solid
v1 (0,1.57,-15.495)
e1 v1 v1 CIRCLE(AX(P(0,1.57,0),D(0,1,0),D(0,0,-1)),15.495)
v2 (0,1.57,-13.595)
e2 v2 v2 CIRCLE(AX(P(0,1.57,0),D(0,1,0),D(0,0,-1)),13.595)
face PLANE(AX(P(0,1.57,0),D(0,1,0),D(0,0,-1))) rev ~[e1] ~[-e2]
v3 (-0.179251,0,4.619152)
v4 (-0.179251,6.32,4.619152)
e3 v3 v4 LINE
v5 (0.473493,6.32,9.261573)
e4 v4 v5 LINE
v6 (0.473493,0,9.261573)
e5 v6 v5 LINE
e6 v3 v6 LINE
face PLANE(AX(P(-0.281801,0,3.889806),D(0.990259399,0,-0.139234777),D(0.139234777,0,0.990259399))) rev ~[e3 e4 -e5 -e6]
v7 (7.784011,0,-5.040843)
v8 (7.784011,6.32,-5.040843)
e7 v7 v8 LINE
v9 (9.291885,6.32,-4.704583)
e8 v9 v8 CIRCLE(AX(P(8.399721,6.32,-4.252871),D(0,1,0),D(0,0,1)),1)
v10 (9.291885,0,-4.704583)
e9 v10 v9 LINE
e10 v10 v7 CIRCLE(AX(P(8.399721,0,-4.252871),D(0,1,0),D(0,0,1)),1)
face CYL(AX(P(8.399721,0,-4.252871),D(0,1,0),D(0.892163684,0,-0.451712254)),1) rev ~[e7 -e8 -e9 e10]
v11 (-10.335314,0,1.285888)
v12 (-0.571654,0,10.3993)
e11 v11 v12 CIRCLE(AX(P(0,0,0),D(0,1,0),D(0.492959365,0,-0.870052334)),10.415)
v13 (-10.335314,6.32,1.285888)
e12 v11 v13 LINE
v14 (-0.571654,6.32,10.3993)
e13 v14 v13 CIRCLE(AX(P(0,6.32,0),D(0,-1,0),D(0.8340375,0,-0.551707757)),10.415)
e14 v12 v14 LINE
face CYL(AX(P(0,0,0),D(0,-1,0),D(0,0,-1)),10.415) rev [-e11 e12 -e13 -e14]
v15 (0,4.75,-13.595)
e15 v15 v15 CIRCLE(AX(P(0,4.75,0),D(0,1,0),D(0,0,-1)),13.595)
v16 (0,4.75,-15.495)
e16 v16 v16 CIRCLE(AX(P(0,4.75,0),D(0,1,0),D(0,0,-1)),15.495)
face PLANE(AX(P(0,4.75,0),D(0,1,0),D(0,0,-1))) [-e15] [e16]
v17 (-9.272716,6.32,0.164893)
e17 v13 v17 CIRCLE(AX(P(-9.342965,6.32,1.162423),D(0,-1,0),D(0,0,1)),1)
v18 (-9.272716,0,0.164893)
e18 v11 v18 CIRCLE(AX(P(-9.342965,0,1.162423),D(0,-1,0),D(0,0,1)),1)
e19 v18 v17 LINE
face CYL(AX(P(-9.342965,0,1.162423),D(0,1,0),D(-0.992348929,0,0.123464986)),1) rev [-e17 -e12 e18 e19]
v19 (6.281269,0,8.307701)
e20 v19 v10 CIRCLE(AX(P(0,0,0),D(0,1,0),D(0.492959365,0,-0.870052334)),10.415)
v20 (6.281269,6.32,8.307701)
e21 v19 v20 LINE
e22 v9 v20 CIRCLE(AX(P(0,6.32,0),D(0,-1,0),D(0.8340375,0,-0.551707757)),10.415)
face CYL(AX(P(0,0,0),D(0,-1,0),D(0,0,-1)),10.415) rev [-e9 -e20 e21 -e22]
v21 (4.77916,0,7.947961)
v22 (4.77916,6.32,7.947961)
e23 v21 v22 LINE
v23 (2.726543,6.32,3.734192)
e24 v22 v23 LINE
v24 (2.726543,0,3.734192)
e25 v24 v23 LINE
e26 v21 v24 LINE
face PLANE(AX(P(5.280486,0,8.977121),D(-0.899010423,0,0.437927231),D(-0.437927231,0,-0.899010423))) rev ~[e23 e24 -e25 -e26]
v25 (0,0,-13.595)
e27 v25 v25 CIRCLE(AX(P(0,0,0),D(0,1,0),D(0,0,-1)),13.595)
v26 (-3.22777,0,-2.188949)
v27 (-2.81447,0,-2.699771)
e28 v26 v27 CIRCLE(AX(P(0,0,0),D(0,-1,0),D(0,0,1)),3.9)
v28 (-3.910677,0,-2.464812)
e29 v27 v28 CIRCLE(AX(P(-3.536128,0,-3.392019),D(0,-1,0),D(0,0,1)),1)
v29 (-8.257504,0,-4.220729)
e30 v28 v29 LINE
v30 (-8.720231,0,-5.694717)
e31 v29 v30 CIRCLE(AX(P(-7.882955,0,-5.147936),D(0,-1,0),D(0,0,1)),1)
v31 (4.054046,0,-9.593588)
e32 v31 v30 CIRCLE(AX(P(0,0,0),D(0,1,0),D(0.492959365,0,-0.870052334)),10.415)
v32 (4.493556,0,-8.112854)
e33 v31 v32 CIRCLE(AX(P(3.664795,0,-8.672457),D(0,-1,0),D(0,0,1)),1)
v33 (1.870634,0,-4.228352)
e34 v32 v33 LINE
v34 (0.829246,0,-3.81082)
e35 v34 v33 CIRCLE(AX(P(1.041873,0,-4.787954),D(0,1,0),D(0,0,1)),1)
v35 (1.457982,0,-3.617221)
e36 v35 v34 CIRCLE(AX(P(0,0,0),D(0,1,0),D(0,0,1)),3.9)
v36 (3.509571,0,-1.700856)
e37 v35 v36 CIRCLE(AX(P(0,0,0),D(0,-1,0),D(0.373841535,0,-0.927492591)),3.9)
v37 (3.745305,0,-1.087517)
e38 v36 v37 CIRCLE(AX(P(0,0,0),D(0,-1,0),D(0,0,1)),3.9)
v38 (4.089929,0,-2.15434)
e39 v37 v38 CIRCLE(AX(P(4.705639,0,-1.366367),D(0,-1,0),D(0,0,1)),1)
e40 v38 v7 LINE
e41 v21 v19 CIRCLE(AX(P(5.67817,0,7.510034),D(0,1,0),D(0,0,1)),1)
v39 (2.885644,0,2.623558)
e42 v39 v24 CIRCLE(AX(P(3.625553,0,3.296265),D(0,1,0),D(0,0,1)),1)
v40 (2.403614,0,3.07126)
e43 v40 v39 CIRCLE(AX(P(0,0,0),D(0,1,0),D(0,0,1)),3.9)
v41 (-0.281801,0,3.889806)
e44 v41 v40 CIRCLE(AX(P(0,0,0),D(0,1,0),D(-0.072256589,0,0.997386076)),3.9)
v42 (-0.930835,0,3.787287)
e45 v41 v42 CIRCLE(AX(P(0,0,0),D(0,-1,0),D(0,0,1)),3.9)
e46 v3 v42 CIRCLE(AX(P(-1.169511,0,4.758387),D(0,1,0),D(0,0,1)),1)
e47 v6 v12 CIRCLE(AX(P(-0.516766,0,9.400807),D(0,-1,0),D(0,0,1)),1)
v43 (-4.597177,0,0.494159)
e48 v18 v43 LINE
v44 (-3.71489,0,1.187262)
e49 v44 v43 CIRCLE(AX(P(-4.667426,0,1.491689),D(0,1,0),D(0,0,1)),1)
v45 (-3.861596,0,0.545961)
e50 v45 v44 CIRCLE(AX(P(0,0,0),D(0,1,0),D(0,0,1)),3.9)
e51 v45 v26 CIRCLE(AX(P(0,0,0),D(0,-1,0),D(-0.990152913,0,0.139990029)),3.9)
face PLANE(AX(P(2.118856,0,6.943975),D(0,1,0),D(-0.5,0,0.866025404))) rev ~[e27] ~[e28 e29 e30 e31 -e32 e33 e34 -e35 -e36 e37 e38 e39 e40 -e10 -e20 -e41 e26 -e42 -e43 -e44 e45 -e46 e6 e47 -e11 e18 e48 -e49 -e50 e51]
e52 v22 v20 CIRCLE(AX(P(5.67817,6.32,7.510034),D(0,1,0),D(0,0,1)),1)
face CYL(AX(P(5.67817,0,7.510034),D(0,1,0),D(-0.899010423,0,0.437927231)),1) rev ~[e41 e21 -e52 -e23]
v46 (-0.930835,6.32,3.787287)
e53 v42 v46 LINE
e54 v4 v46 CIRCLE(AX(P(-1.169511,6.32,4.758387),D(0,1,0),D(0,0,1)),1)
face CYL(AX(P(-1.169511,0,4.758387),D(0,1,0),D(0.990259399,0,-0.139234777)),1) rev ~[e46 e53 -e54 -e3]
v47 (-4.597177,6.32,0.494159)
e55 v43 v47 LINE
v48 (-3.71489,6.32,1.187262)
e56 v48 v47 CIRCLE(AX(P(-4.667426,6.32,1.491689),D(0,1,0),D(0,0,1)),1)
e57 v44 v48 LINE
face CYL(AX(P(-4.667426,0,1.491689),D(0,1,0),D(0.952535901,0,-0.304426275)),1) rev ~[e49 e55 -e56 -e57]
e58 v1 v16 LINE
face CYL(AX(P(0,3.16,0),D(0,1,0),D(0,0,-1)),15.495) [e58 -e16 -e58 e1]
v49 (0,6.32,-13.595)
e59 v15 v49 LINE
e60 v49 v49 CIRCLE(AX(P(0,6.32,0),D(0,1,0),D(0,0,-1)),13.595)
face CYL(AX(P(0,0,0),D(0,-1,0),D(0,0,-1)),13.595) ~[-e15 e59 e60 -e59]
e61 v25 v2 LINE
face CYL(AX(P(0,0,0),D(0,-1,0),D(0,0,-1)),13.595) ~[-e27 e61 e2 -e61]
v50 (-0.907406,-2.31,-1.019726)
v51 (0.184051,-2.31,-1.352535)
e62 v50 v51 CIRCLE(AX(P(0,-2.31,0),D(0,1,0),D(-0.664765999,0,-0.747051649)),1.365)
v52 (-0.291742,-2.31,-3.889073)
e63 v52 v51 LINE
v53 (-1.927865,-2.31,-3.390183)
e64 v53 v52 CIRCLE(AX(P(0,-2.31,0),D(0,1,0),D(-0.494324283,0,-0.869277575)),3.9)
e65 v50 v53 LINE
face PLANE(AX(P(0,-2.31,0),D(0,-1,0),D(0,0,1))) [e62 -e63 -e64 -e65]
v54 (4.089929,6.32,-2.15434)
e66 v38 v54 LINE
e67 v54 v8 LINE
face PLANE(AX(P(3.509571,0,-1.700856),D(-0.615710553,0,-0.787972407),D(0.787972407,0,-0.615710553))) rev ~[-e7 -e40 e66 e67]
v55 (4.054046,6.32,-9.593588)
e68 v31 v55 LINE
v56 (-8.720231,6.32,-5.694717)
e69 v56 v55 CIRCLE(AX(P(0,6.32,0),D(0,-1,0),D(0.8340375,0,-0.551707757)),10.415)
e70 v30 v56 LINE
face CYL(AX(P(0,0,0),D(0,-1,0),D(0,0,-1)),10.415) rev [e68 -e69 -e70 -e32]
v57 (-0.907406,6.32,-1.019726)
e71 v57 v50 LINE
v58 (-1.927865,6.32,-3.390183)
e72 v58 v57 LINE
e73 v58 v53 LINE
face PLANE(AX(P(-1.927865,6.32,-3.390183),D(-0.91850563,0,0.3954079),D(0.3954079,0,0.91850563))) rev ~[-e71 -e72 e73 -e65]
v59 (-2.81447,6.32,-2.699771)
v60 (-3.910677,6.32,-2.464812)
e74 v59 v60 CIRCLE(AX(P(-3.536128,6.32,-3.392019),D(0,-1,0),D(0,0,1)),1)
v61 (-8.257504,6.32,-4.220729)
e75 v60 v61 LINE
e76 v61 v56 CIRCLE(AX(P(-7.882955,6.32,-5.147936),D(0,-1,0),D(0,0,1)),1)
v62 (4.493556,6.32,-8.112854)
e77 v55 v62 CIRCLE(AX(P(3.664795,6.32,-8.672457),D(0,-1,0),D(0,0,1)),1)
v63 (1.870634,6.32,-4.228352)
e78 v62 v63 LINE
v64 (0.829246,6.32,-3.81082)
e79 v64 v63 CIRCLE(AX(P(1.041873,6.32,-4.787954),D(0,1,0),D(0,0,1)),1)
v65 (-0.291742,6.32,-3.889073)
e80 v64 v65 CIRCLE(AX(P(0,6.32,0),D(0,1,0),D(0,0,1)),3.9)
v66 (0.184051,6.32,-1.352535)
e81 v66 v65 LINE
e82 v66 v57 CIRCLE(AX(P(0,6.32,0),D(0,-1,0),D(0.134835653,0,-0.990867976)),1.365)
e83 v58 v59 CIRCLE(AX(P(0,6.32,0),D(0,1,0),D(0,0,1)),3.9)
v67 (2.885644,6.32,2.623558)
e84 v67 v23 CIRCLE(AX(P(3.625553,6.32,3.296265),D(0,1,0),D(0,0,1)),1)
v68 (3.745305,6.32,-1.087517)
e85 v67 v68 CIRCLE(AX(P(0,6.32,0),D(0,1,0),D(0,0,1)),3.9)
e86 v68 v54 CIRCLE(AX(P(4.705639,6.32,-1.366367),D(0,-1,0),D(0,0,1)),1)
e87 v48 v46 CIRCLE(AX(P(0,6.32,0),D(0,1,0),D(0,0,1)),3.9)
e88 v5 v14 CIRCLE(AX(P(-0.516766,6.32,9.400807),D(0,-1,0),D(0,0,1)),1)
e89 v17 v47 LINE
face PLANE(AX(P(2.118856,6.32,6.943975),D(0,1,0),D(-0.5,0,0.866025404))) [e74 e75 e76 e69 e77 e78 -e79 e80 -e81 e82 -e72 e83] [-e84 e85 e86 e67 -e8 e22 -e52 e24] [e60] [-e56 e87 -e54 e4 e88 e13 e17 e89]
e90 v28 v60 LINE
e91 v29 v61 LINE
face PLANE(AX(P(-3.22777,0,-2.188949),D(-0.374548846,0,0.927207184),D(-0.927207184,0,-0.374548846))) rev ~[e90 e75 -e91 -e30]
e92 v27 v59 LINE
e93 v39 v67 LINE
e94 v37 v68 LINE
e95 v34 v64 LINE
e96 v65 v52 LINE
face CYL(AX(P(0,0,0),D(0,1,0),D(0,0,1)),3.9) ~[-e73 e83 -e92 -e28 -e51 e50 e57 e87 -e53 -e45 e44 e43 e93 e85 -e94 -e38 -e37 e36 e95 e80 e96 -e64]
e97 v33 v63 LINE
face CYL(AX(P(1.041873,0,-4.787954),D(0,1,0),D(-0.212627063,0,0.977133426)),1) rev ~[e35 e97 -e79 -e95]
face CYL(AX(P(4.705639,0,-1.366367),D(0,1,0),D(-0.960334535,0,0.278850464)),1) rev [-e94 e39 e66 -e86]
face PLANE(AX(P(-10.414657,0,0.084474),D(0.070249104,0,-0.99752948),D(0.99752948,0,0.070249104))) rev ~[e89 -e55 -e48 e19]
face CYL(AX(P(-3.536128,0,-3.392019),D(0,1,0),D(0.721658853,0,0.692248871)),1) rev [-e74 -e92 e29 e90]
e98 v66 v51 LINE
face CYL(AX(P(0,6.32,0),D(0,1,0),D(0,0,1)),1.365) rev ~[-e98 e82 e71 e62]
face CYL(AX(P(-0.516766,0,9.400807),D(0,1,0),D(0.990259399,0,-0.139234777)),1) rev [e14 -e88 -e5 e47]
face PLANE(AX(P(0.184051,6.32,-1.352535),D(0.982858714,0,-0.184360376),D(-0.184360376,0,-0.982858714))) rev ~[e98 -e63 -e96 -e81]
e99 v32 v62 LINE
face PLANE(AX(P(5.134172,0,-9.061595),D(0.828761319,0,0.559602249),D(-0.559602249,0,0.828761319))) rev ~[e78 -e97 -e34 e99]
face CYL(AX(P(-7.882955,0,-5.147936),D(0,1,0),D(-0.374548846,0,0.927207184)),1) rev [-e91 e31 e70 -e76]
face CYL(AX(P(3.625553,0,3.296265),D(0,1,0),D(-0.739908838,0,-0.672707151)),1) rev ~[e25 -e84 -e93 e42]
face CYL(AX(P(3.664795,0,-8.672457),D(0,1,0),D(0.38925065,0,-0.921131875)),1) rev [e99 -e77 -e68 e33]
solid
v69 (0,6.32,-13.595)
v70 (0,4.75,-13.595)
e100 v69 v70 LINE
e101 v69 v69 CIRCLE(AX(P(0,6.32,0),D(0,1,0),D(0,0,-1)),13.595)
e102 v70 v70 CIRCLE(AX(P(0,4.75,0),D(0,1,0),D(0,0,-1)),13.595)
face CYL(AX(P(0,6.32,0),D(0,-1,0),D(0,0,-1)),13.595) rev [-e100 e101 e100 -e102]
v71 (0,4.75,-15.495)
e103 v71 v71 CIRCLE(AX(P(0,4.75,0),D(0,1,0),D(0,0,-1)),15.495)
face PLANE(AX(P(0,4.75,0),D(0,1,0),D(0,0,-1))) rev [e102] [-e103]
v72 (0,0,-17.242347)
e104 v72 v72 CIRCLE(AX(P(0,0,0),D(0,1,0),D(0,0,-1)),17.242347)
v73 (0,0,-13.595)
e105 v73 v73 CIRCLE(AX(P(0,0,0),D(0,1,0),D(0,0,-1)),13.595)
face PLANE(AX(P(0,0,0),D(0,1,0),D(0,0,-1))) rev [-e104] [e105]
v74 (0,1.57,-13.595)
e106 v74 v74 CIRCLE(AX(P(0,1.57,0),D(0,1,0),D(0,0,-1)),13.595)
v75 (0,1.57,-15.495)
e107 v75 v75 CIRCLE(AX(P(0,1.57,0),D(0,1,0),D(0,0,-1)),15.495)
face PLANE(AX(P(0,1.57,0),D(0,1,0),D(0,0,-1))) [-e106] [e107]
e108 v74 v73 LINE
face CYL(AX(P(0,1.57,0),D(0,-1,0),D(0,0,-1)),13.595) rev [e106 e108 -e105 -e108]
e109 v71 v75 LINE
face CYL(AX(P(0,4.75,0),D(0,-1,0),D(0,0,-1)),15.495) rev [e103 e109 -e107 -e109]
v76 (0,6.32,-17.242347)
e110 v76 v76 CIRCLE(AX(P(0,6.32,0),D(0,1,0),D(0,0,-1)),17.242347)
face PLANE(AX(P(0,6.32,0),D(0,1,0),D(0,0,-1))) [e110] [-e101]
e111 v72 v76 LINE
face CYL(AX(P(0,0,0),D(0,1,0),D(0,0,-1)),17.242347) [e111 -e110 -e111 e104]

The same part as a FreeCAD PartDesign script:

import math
import FreeCAD as App
import Part
import Sketcher


def edges_at(feature, points):
    """Names of the edges that pass closest to the given points."""
    edges = feature.Shape.Edges
    near = lambda p: min(range(len(edges)), key=lambda i: edges[i].distToShape(Part.Vertex(*p))[0])
    return sorted({f"Edge{near(p) + 1}" for p in points})

doc = App.newDocument("Part")
body = doc.addObject("PartDesign::Body", "Body")

# Sketch on XZ plane
sketch1 = body.newObject("Sketcher::SketchObject", "Sketch")
sketch1.AttachmentSupport = (doc.getObject("XZ_Plane"), [""])
sketch1.MapMode = "FlatFace"
sketch1.addGeometry(Part.Circle(App.Vector(0, 0, 0), App.Vector(0, 0, 1), 14), False)
sketch1.addGeometry(Part.Circle(App.Vector(0, 0, 0), App.Vector(0, 0, 1), 10), False)
sketch1.addConstraint(Sketcher.Constraint("Coincident", 0, 3, -1, 1))
sketch1.addConstraint(Sketcher.Constraint("Coincident", 1, 3, -1, 1))
sketch1.addConstraint(Sketcher.Constraint("Diameter", 0, 27.19))
sketch1.addConstraint(Sketcher.Constraint("Diameter", 1, 20.83))
pad1 = body.newObject("PartDesign::Pad", "Pad")
pad1.Profile = sketch1
pad1.Length = 6.32
pad1.Reversed = True

# Sketch on XY plane
sketch2 = body.newObject("Sketcher::SketchObject", "Sketch001")
sketch2.AttachmentSupport = (doc.getObject("XY_Plane"), [""])
sketch2.MapMode = "FlatFace"
sketch2.addGeometry(Part.LineSegment(App.Vector(-15.5, 4.8, 0), App.Vector(-15.5, 1.6, 0)), False)
sketch2.addGeometry(Part.LineSegment(App.Vector(-15.5, 1.6, 0), App.Vector(-13.6, 1.6, 0)), False)
sketch2.addGeometry(Part.LineSegment(App.Vector(-13.6, 1.6, 0), App.Vector(-13.6, 4.8, 0)), False)
sketch2.addGeometry(Part.LineSegment(App.Vector(-13.6, 4.8, 0), App.Vector(-15.5, 4.8, 0)), False)
sketch2.addConstraint(Sketcher.Constraint("Coincident", 0, 2, 1, 1))
sketch2.addConstraint(Sketcher.Constraint("Coincident", 1, 2, 2, 1))
sketch2.addConstraint(Sketcher.Constraint("Coincident", 2, 2, 3, 1))
sketch2.addConstraint(Sketcher.Constraint("Coincident", 3, 2, 0, 1))
sketch2.addConstraint(Sketcher.Constraint("Vertical", 0))
sketch2.addConstraint(Sketcher.Constraint("Horizontal", 1))
sketch2.addConstraint(Sketcher.Constraint("Vertical", 2))
sketch2.addConstraint(Sketcher.Constraint("Horizontal", 3))
sketch2.addConstraint(Sketcher.Constraint("DistanceX", 1, 1, 1, 2, 1.9))
sketch2.addConstraint(Sketcher.Constraint("DistanceY", 0, 2, 0, 1, 3.18))
sketch2.addConstraint(Sketcher.Constraint("DistanceY", -1, 1, 0, 2, 1.57))
sketch2.addConstraint(Sketcher.Constraint("DistanceX", 0, 2, -1, 1, 15.495))
revolution = body.newObject("PartDesign::Revolution", "Revolution")
revolution.Profile = sketch2
revolution.ReferenceAxis = (sketch2, ["V_Axis"])
revolution.Angle = 360
body2 = doc.addObject("PartDesign::Body", "Body001")

# Sketch on XZ plane
sketch3 = body2.newObject("Sketcher::SketchObject", "Sketch002")
sketch3.AttachmentSupport = (doc.getObject("XZ_Plane001"), [""])
sketch3.MapMode = "FlatFace"
sketch3.AttachmentOffset = App.Placement(App.Vector(0, 0, -6.32), App.Rotation())
sketch3.addGeometry(Part.Circle(App.Vector(0, 0, 0), App.Vector(0, 0, 1), 3.9), False)
sketch3.addConstraint(Sketcher.Constraint("Coincident", 0, 3, -1, 1))
sketch3.addConstraint(Sketcher.Constraint("Diameter", 0, 7.8))
pad2 = body2.newObject("PartDesign::Pad", "Pad001")
pad2.Profile = sketch3
pad2.Length = 6.32

# Sketch on XZ plane
sketch4 = body2.newObject("Sketcher::SketchObject", "Sketch003")
sketch4.AttachmentSupport = (doc.getObject("XZ_Plane001"), [""])
sketch4.MapMode = "FlatFace"
sketch4.addGeometry(Part.Circle(App.Vector(0, 0, 0), App.Vector(0, 0, 1), 3.9), False)
sketch4.addConstraint(Sketcher.Constraint("Coincident", 0, 3, -1, 1))
sketch4.addConstraint(Sketcher.Constraint("Diameter", 0, 7.8))
pad3 = body2.newObject("PartDesign::Pad", "Pad002")
pad3.Profile = sketch4
pad3.Length = 2.31

# Sketch on XZ plane
sketch5 = body2.newObject("Sketcher::SketchObject", "Sketch004")
sketch5.AttachmentSupport = (doc.getObject("XZ_Plane001"), [""])
sketch5.MapMode = "FlatFace"
sketch5.AttachmentOffset = App.Placement(App.Vector(0, 0, -6.32), App.Rotation())
sketch5.addGeometry(Part.Circle(App.Vector(0, 0, 0), App.Vector(0, 0, 1), 1.4), False)
sketch5.addConstraint(Sketcher.Constraint("Coincident", 0, 3, -1, 1))
sketch5.addConstraint(Sketcher.Constraint("Diameter", 0, 2.73))
pocket1 = body2.newObject("PartDesign::Pocket", "Pocket")
pocket1.Profile = sketch5
pocket1.Length = 8.63
pocket1.Reversed = True
body.AllowCompound = True
doc.recompute()

boolean = body.newObject("PartDesign::Boolean", "Boolean")
boolean.Type = "Fuse"
boolean.addObjects([body2])

# Sketch on XZ plane
sketch6 = body.newObject("Sketcher::SketchObject", "Sketch005")
sketch6.AttachmentSupport = (doc.getObject("XZ_Plane"), [""])
sketch6.MapMode = "FlatFace"
sketch6.addGeometry(Part.LineSegment(App.Vector(5.1, -9.1, 0), App.Vector(1.5, -3.6, 0)), False)
sketch6.addGeometry(Part.ArcOfCircle(Part.Circle(App.Vector(0, 0, 0), App.Vector(0, 0, 1), 3.9), math.radians(-68), math.radians(-26)), False)
sketch6.addGeometry(Part.LineSegment(App.Vector(3.5, -1.7, 0), App.Vector(8.7, -5.7, 0)), False)
sketch6.addGeometry(Part.ArcOfCircle(Part.Circle(App.Vector(0, 0, 0), App.Vector(0, 0, 1), 10.4), math.radians(-60), math.radians(-33)), False)
sketch6.addConstraint(Sketcher.Constraint("Coincident", 0, 2, 1, 1))
sketch6.addConstraint(Sketcher.Constraint("Coincident", 1, 2, 2, 1))
sketch6.addConstraint(Sketcher.Constraint("Coincident", 2, 2, 3, 2))
sketch6.addConstraint(Sketcher.Constraint("Coincident", 3, 1, 0, 1))
sketch6.addConstraint(Sketcher.Constraint("Coincident", 1, 3, -1, 1))
sketch6.addConstraint(Sketcher.Constraint("Coincident", 3, 3, -1, 1))
sketch6.addConstraint(Sketcher.Constraint("Radius", 1, 3.9))
sketch6.addConstraint(Sketcher.Constraint("Radius", 3, 10.415))
sketch6.addConstraint(Sketcher.Constraint("DistanceX", -1, 1, 2, 2, 8.686501))
sketch6.addConstraint(Sketcher.Constraint("DistanceX", 1, 2, 3, 1, 1.624601))
sketch6.addConstraint(Sketcher.Constraint("Distance", 0, 6.569291))
sketch6.addConstraint(Sketcher.Constraint("DistanceX", -1, 1, 0, 2, 1.457982))
pad4 = body.newObject("PartDesign::Pad", "Pad003")
pad4.Profile = sketch6
pad4.Length = 6.32
pad4.Reversed = True
doc.recompute()

polarpattern = body.newObject("PartDesign::PolarPattern", "PolarPattern")
polarpattern.Originals = [pad4]
polarpattern.Axis = (doc.getObject("Y_Axis"), [""])
polarpattern.Angle = 360
polarpattern.Occurrences = 3
body.Tip = polarpattern
doc.recompute()

fillet = body.newObject("PartDesign::Fillet", "Fillet")
fillet.Base = (polarpattern, edges_at(polarpattern, [(0.633, 3.16, 10.396)]))
fillet.Radius = 1
doc.recompute()

fillet2 = body.newObject("PartDesign::Fillet", "Fillet001")
fillet2.Base = (fillet, edges_at(fillet, [
    (5.134, 3.16, -9.062),
    (8.687, 3.16, -5.746),
    (3.51, 3.16, -1.701),
    (1.458, 3.16, -3.617),
    (-10.415, 3.16, 0.084),
    (-9.319, 3.16, -4.65),
    (-3.228, 3.16, -2.189),
    (-3.862, 3.16, 0.546),
    (5.28, 3.16, 8.977),
    (-0.282, 3.16, 3.89),
    (2.404, 3.16, 3.071),
]))
fillet2.Radius = 1

# Sketch on XZ plane
sketch7 = body.newObject("Sketcher::SketchObject", "Sketch006")
sketch7.AttachmentSupport = (doc.getObject("XZ_Plane"), [""])
sketch7.MapMode = "FlatFace"
sketch7.AttachmentOffset = App.Placement(App.Vector(0, 0, -6.32), App.Rotation())
sketch7.addGeometry(Part.LineSegment(App.Vector(-1.9, -3.4, 0), App.Vector(-0.9, -1, 0)), False)
sketch7.addGeometry(Part.ArcOfCircle(Part.Circle(App.Vector(0, 0, 0), App.Vector(0, 0, 1), 1.4), math.radians(-132), math.radians(-82)), False)
sketch7.addGeometry(Part.LineSegment(App.Vector(0.2, -1.4, 0), App.Vector(-0.3, -3.9, 0)), False)
sketch7.addGeometry(Part.ArcOfCircle(Part.Circle(App.Vector(0, 0, 0), App.Vector(0, 0, 1), 3.9), math.radians(-120), math.radians(-94)), False)
sketch7.addConstraint(Sketcher.Constraint("Coincident", 0, 2, 1, 1))
sketch7.addConstraint(Sketcher.Constraint("Coincident", 1, 2, 2, 1))
sketch7.addConstraint(Sketcher.Constraint("Coincident", 2, 2, 3, 2))
sketch7.addConstraint(Sketcher.Constraint("Coincident", 3, 1, 0, 1))
sketch7.addConstraint(Sketcher.Constraint("Coincident", 1, 3, -1, 1))
sketch7.addConstraint(Sketcher.Constraint("Coincident", 3, 3, -1, 1))
sketch7.addConstraint(Sketcher.Constraint("Equal", 0, 2))
sketch7.addConstraint(Sketcher.Constraint("Radius", 3, 3.9))
sketch7.addConstraint(Sketcher.Constraint("Radius", 1, 1.365))
sketch7.addConstraint(Sketcher.Constraint("DistanceX", -1, 1, 1, 2, 0.184051))
sketch7.addConstraint(Sketcher.Constraint("DistanceY", 1, 2, 0, 2, 0.332809))
sketch7.addConstraint(Sketcher.Constraint("DistanceY", 2, 2, 3, 1, 0.49889))
pocket2 = body.newObject("PartDesign::Pocket", "Pocket001")
pocket2.Profile = sketch7
pocket2.Length = 25.31
pocket2.Reversed = True
body3 = doc.addObject("PartDesign::Body", "Body002")

# Sketch on XY plane
sketch8 = body3.newObject("Sketcher::SketchObject", "Sketch007")
sketch8.AttachmentSupport = (doc.getObject("XY_Plane002"), [""])
sketch8.MapMode = "FlatFace"
sketch8.addGeometry(Part.LineSegment(App.Vector(-15.5, 4.8, 0), App.Vector(-13.6, 4.8, 0)), False)
sketch8.addGeometry(Part.LineSegment(App.Vector(-13.6, 4.8, 0), App.Vector(-13.6, 6.3, 0)), False)
sketch8.addGeometry(Part.LineSegment(App.Vector(-13.6, 6.3, 0), App.Vector(-17.2, 6.3, 0)), False)
sketch8.addGeometry(Part.LineSegment(App.Vector(-17.2, 6.3, 0), App.Vector(-17.2, 0, 0)), False)
sketch8.addGeometry(Part.LineSegment(App.Vector(-17.2, 0, 0), App.Vector(-13.6, 0, 0)), False)
sketch8.addGeometry(Part.LineSegment(App.Vector(-13.6, 0, 0), App.Vector(-13.6, 1.6, 0)), False)
sketch8.addGeometry(Part.LineSegment(App.Vector(-13.6, 1.6, 0), App.Vector(-15.5, 1.6, 0)), False)
sketch8.addGeometry(Part.LineSegment(App.Vector(-15.5, 1.6, 0), App.Vector(-15.5, 4.8, 0)), False)
sketch8.addConstraint(Sketcher.Constraint("Coincident", 0, 2, 1, 1))
sketch8.addConstraint(Sketcher.Constraint("Coincident", 1, 2, 2, 1))
sketch8.addConstraint(Sketcher.Constraint("Coincident", 2, 2, 3, 1))
sketch8.addConstraint(Sketcher.Constraint("Coincident", 3, 2, 4, 1))
sketch8.addConstraint(Sketcher.Constraint("Coincident", 4, 2, 5, 1))
sketch8.addConstraint(Sketcher.Constraint("Coincident", 5, 2, 6, 1))
sketch8.addConstraint(Sketcher.Constraint("Coincident", 6, 2, 7, 1))
sketch8.addConstraint(Sketcher.Constraint("Coincident", 7, 2, 0, 1))
sketch8.addConstraint(Sketcher.Constraint("Horizontal", 0))
sketch8.addConstraint(Sketcher.Constraint("Vertical", 1))
sketch8.addConstraint(Sketcher.Constraint("Horizontal", 2))
sketch8.addConstraint(Sketcher.Constraint("Vertical", 3))
sketch8.addConstraint(Sketcher.Constraint("Horizontal", 4))
sketch8.addConstraint(Sketcher.Constraint("Vertical", 5))
sketch8.addConstraint(Sketcher.Constraint("Horizontal", 6))
sketch8.addConstraint(Sketcher.Constraint("Vertical", 7))
sketch8.addConstraint(Sketcher.Constraint("PointOnObject", 3, 2, -1))
sketch8.addConstraint(Sketcher.Constraint("Vertical", 1, 2, 4, 2))
sketch8.addConstraint(Sketcher.Constraint("Equal", 1, 5))
sketch8.addConstraint(Sketcher.Constraint("DistanceX", 0, 1, 0, 2, 1.9))
sketch8.addConstraint(Sketcher.Constraint("DistanceY", 1, 1, 1, 2, 1.57))
sketch8.addConstraint(Sketcher.Constraint("DistanceY", 3, 2, 3, 1, 6.32))
sketch8.addConstraint(Sketcher.Constraint("DistanceX", 0, 2, -1, 1, 13.595))
sketch8.addConstraint(Sketcher.Constraint("DistanceX", 2, 2, 2, 1, 3.647347))
revolution2 = body3.newObject("PartDesign::Revolution", "Revolution001")
revolution2.Profile = sketch8
revolution2.ReferenceAxis = (sketch8, ["V_Axis"])
revolution2.Angle = 360

doc.recompute()
